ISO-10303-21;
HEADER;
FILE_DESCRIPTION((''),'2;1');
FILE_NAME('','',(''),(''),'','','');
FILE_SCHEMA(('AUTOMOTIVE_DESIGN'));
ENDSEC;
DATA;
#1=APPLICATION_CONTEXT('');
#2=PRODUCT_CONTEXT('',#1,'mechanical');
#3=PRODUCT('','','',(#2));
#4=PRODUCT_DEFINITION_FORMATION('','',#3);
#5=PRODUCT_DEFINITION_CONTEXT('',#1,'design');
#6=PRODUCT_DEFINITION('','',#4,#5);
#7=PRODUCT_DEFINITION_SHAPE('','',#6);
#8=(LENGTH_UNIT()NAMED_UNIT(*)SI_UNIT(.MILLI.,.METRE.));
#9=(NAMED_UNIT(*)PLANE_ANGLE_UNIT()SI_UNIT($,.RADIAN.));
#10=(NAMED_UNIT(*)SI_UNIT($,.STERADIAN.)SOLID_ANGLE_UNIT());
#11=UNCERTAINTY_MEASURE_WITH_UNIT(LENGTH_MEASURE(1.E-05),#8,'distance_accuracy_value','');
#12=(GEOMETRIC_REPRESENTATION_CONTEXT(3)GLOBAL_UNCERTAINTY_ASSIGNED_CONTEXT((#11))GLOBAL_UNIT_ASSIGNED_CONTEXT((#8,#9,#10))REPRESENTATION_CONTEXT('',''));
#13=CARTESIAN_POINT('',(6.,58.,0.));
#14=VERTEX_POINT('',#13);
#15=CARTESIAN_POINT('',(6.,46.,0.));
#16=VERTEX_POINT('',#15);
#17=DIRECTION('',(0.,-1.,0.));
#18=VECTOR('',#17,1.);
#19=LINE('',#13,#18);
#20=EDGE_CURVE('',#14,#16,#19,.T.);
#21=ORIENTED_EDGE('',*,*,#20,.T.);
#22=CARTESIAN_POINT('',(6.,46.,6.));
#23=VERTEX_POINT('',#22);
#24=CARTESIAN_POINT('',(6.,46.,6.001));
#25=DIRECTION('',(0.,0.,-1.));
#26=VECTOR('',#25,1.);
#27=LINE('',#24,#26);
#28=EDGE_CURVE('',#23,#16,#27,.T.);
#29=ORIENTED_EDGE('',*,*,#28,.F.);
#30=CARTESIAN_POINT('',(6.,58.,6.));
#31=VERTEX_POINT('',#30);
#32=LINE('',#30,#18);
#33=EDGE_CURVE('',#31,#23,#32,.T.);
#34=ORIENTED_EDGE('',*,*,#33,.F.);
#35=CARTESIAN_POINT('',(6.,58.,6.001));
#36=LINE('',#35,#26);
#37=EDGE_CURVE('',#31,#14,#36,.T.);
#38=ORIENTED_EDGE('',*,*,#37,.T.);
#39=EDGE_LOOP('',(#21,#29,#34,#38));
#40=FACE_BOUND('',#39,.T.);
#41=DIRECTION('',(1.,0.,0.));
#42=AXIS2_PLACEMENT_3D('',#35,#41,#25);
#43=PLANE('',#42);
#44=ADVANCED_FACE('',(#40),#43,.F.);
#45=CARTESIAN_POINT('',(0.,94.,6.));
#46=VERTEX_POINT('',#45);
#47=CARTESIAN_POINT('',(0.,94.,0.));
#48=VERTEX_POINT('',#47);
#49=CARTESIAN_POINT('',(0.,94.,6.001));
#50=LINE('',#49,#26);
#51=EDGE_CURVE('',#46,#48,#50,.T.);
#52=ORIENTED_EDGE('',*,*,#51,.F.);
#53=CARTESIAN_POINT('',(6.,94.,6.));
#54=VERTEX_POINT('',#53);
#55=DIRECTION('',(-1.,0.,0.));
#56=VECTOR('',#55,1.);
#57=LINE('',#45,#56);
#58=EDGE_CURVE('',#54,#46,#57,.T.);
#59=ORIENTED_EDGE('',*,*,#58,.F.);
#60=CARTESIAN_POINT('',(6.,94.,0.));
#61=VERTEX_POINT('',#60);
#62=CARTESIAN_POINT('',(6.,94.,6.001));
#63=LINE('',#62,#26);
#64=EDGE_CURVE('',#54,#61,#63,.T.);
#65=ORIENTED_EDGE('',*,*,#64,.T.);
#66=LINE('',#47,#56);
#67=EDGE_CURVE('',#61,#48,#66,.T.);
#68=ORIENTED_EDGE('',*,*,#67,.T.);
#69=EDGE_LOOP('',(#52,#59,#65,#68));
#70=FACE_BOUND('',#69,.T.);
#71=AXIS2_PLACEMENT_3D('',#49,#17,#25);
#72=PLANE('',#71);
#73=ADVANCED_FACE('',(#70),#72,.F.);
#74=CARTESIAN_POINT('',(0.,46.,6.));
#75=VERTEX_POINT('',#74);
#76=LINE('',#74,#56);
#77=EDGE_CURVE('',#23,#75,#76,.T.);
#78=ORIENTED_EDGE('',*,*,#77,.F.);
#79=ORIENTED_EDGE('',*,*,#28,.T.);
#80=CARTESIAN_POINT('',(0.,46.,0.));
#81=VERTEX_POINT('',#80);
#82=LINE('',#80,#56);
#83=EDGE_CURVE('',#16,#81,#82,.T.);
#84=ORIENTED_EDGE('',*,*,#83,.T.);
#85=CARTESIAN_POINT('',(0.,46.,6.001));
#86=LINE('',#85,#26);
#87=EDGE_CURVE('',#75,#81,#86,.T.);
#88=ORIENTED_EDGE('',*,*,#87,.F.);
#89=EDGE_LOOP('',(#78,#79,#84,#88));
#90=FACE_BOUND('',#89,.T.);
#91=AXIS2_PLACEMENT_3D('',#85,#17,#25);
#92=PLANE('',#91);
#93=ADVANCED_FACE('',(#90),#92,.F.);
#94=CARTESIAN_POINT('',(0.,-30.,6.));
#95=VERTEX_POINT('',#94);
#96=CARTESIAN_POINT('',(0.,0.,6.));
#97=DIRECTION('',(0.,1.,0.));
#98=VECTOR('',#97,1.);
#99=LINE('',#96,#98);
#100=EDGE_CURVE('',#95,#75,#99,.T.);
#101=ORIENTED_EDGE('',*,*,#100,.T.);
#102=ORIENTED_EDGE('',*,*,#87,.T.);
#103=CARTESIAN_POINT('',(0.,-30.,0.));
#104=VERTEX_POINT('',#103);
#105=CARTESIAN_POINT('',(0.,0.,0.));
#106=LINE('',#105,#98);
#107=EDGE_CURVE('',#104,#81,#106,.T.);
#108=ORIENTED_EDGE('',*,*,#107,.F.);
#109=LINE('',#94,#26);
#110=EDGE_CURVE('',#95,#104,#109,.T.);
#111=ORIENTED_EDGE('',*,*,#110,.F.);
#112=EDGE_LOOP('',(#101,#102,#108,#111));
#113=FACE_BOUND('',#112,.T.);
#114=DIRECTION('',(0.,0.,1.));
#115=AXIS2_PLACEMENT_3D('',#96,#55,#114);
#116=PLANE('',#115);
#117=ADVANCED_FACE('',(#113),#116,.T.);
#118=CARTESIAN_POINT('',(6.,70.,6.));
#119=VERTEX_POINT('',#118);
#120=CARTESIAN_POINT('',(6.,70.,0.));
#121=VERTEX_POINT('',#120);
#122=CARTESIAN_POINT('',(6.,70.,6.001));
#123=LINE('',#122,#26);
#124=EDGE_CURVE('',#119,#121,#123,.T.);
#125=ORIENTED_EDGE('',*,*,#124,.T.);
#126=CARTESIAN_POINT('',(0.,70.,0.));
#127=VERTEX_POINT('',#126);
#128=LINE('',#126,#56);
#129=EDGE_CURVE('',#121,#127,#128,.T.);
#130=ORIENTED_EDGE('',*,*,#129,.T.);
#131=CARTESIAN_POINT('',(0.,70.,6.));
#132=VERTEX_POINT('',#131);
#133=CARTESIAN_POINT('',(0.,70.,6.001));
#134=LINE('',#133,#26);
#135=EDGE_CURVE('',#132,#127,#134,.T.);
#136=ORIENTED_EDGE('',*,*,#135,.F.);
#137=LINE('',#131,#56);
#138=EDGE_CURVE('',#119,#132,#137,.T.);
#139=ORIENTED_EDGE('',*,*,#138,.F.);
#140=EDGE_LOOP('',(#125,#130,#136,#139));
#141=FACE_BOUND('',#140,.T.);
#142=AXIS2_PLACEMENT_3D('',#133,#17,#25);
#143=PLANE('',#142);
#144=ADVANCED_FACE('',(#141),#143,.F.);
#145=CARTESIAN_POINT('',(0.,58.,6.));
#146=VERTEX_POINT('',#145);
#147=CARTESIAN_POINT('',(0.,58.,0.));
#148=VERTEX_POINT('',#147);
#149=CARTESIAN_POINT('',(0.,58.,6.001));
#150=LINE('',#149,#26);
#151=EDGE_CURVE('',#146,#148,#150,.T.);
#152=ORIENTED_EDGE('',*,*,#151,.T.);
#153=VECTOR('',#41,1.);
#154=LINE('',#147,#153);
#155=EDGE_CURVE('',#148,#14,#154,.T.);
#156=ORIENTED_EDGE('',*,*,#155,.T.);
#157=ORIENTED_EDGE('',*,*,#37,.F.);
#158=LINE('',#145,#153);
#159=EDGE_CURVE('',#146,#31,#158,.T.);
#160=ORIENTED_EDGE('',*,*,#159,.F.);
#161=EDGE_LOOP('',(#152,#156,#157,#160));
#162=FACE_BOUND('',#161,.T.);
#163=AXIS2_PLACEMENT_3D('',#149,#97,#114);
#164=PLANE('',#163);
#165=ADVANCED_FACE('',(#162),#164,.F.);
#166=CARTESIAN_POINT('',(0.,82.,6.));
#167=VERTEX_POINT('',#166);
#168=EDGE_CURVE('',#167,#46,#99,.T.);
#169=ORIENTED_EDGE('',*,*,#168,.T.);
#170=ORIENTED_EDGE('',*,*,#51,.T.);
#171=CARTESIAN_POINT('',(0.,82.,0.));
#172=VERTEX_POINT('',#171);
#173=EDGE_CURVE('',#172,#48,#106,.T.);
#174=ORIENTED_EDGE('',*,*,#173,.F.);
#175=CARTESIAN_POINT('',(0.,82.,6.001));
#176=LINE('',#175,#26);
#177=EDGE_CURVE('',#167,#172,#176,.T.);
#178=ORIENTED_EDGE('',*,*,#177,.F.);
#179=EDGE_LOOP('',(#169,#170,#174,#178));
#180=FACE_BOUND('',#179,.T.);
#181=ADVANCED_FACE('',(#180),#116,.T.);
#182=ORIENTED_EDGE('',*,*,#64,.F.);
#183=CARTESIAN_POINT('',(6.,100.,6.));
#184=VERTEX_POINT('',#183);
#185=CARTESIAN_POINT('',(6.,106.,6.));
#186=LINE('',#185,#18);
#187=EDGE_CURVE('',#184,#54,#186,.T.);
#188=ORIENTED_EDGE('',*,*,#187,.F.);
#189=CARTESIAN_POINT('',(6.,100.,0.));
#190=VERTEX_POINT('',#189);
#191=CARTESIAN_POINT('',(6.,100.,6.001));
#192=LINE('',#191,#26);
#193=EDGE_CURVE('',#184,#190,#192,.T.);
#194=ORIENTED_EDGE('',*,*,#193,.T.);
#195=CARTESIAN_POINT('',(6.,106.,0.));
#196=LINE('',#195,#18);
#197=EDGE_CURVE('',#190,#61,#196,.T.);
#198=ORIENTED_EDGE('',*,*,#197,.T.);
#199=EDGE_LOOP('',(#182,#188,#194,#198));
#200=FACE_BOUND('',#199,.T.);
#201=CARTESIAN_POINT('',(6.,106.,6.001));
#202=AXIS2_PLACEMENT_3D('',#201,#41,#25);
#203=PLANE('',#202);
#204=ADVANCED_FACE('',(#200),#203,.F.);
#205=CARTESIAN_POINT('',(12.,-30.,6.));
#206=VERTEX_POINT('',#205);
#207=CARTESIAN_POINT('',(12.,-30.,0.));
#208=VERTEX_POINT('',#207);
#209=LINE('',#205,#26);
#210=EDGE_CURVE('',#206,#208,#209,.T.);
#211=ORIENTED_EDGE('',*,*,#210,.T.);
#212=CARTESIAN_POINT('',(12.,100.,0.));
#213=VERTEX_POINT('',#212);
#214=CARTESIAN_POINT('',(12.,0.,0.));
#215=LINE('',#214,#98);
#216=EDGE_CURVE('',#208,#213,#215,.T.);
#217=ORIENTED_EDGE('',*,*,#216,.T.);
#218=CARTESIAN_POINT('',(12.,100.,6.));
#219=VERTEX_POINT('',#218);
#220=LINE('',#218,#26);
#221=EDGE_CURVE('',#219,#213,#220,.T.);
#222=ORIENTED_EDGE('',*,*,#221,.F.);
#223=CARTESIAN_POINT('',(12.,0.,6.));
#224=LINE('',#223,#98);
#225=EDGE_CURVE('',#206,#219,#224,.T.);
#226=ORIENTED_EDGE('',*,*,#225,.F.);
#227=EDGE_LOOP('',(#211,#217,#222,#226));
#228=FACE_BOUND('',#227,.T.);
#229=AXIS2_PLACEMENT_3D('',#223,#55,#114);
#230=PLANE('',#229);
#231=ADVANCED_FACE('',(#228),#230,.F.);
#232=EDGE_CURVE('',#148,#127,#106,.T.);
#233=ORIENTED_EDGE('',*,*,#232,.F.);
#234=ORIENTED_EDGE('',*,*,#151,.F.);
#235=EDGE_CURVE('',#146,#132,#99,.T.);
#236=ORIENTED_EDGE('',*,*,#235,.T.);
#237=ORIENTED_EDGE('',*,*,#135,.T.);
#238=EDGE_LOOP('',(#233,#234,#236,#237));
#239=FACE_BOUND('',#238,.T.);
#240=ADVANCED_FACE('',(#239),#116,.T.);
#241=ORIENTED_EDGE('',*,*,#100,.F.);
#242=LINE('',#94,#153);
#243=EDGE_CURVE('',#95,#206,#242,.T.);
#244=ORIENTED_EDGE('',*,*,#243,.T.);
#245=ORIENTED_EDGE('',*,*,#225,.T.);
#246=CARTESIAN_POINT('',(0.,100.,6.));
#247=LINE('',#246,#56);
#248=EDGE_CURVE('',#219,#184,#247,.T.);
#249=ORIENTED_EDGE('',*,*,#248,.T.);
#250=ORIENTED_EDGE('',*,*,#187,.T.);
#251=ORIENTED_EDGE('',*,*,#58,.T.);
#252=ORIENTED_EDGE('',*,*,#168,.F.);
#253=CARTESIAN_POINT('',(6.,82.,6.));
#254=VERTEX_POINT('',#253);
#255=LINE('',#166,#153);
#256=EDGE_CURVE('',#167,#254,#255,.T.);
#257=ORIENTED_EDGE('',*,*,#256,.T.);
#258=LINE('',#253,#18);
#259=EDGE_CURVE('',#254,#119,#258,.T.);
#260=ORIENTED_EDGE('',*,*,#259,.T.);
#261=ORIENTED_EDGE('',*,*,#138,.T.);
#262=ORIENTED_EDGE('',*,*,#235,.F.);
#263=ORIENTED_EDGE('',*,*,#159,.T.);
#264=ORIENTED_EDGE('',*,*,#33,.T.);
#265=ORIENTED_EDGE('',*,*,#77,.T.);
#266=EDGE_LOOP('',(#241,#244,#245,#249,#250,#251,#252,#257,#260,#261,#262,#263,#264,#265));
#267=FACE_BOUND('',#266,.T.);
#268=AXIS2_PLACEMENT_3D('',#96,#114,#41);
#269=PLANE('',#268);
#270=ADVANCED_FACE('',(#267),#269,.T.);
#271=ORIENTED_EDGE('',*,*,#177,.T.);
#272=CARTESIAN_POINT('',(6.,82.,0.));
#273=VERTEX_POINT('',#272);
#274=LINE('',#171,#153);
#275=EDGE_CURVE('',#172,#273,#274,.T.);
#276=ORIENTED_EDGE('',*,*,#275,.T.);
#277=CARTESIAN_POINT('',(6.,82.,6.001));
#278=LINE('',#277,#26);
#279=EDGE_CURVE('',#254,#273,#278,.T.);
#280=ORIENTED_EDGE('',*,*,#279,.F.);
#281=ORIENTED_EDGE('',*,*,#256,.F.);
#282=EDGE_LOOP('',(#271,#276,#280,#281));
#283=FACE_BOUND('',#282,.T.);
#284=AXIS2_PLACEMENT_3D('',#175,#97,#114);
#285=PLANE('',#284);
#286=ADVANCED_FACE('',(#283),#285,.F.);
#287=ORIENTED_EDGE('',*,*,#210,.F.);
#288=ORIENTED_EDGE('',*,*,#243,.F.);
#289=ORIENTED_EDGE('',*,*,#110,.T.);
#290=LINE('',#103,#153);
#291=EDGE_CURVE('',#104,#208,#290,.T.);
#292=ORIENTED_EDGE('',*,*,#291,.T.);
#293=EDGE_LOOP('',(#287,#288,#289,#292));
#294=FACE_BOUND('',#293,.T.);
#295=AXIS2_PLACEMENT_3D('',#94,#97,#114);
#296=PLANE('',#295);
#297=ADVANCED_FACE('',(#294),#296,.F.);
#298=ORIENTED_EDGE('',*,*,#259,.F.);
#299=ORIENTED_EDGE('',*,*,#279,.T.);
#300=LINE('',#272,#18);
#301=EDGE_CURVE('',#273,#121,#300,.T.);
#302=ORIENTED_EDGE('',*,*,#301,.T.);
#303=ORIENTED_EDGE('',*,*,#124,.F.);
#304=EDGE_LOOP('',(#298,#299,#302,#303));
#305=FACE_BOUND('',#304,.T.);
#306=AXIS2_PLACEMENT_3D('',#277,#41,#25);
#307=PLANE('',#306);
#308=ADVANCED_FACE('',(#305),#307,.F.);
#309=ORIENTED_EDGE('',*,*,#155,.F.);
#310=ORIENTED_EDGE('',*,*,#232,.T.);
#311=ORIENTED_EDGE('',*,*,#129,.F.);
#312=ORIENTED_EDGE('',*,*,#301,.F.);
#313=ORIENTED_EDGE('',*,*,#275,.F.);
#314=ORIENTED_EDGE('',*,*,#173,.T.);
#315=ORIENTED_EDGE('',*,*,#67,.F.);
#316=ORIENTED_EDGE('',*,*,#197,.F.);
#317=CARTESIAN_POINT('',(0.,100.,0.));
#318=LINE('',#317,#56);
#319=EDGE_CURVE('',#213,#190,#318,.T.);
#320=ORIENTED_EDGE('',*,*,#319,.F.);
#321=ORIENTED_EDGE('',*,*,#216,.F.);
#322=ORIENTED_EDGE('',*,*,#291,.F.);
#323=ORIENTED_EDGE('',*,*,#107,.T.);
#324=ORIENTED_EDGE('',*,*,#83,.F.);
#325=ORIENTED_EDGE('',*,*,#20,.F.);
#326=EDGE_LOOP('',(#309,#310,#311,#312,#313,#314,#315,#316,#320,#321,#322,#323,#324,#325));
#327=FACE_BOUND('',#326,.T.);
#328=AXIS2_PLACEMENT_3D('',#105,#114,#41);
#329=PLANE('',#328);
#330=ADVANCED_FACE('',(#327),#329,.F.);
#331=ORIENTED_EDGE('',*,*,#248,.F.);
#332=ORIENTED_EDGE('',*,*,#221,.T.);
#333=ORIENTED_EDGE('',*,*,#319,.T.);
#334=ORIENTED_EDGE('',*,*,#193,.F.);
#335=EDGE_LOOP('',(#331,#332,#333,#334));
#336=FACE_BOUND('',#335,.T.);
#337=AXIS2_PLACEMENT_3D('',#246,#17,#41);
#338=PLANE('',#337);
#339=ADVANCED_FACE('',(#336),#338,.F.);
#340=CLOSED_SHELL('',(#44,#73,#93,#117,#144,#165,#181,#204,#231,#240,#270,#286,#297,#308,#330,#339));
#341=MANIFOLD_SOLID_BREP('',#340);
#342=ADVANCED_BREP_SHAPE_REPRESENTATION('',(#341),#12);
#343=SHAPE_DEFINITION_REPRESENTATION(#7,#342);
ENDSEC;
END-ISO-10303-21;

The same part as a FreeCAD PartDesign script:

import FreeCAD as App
import Part
import Sketcher

V = App.Vector


def add_polygon(sketch, points):
    """Adds a closed chain of lines whose ends are joined by coincident constraints."""
    first, n = sketch.GeometryCount, len(points)
    for a, b in zip(points, points[1:] + points[:1]):
        sketch.addGeometry(Part.LineSegment(App.Vector(*a, 0), App.Vector(*b, 0)), False)
    for i in range(n):
        sketch.addConstraint(Sketcher.Constraint("Coincident", first + i, 2, first + (i + 1) % n, 1))

doc = App.newDocument("Part")
body = doc.addObject("PartDesign::Body", "Body")

# Sketch on XY plane
sketch1 = doc.addObject("Sketcher::SketchObject", "Sketch")
body.addObject(sketch1)
sketch1.AttachmentSupport = (doc.XY_Plane, [""])
sketch1.MapMode = "FlatFace"
add_polygon(sketch1, [(0, 100), (0, 0), (12, 0), (12, 100)])  # lines 0-3
sketch1.addConstraint([
    Sketcher.Constraint("Vertical", 0),
    Sketcher.Constraint("Horizontal", 1),
    Sketcher.Constraint("Vertical", 2),
    Sketcher.Constraint("Horizontal", 3),
    Sketcher.Constraint("Coincident", 0, 2, -1, 1),
    Sketcher.Constraint("DistanceX", 1, 1, 1, 2, 12.0),
    Sketcher.Constraint("DistanceY", 0, 2, 0, 1, 100.0),
])
pad1 = doc.addObject("PartDesign::Pad", "Pad")
body.addObject(pad1)
pad1.Profile = sketch1
pad1.Length = 6

# Sketch on XY plane
sketch2 = doc.addObject("Sketcher::SketchObject", "Sketch001")
body.addObject(sketch2)
sketch2.AttachmentSupport = (doc.XY_Plane, [""])
sketch2.MapMode = "FlatFace"
add_polygon(sketch2, [(0, 0), (0, -30), (12, -30), (12, 0)])  # lines 0-3
sketch2.addConstraint([
    Sketcher.Constraint("Vertical", 0),
    Sketcher.Constraint("Horizontal", 1),
    Sketcher.Constraint("Vertical", 2),
    Sketcher.Constraint("Horizontal", 3),
    Sketcher.Constraint("Coincident", 3, 2, -1, 1),
    Sketcher.Constraint("DistanceX", 1, 1, 1, 2, 12.0),
    Sketcher.Constraint("DistanceY", 0, 2, 0, 1, 30.0),
])
pad2 = doc.addObject("PartDesign::Pad", "Pad001")
body.addObject(pad2)
pad2.Profile = sketch2
pad2.Length = 6

# Sketch on XY plane
sketch3 = doc.addObject("Sketcher::SketchObject", "Sketch002")
body.addObject(sketch3)
sketch3.AttachmentSupport = (doc.XY_Plane, [""])
sketch3.MapMode = "FlatFace"
add_polygon(sketch3, [(6, 106), (6, 94), (0, 94), (0, 106)])  # lines 0-3
sketch3.addConstraint([
    Sketcher.Constraint("Vertical", 0),
    Sketcher.Constraint("Horizontal", 1),
    Sketcher.Constraint("Vertical", 2),
    Sketcher.Constraint("Horizontal", 3),
    Sketcher.Constraint("PointOnObject", 1, 2, -2),
    Sketcher.Constraint("DistanceX", 1, 2, 1, 1, 6.0),
    Sketcher.Constraint("DistanceY", 0, 2, 0, 1, 12.0),
    Sketcher.Constraint("DistanceY", -1, 1, 0, 2, 94.0),
])
pocket1 = doc.addObject("PartDesign::Pocket", "Pocket")
body.addObject(pocket1)
pocket1.Profile = sketch3
pocket1.Type = "UpToFirst"
pocket1.Reversed = True

# Sketch on XY plane
sketch4 = doc.addObject("Sketcher::SketchObject", "Sketch003")
body.addObject(sketch4)
sketch4.AttachmentSupport = (doc.XY_Plane, [""])
sketch4.MapMode = "FlatFace"
add_polygon(sketch4, [(6, 82), (6, 70), (0, 70), (0, 82)])  # lines 0-3
sketch4.addConstraint([
    Sketcher.Constraint("Vertical", 0),
    Sketcher.Constraint("Horizontal", 1),
    Sketcher.Constraint("Vertical", 2),
    Sketcher.Constraint("Horizontal", 3),
    Sketcher.Constraint("PointOnObject", 1, 2, -2),
    Sketcher.Constraint("DistanceX", 1, 2, 1, 1, 6.0),
    Sketcher.Constraint("DistanceY", 0, 2, 0, 1, 12.0),
    Sketcher.Constraint("DistanceY", -1, 1, 0, 2, 70.0),
])
pocket2 = doc.addObject("PartDesign::Pocket", "Pocket001")
body.addObject(pocket2)
pocket2.Profile = sketch4
pocket2.Type = "UpToFirst"
pocket2.Reversed = True

# Sketch on XY plane
sketch5 = doc.addObject("Sketcher::SketchObject", "Sketch004")
body.addObject(sketch5)
sketch5.AttachmentSupport = (doc.XY_Plane, [""])
sketch5.MapMode = "FlatFace"
add_polygon(sketch5, [(6, 58), (6, 46), (0, 46), (0, 58)])  # lines 0-3
sketch5.addConstraint([
    Sketcher.Constraint("Vertical", 0),
    Sketcher.Constraint("Horizontal", 1),
    Sketcher.Constraint("Vertical", 2),
    Sketcher.Constraint("Horizontal", 3),
    Sketcher.Constraint("PointOnObject", 1, 2, -2),
    Sketcher.Constraint("DistanceX", 1, 2, 1, 1, 6.0),
    Sketcher.Constraint("DistanceY", 0, 2, 0, 1, 12.0),
    Sketcher.Constraint("DistanceY", -1, 1, 0, 2, 46.0),
])
pocket3 = doc.addObject("PartDesign::Pocket", "Pocket002")
body.addObject(pocket3)
pocket3.Profile = sketch5
pocket3.Type = "UpToFirst"
pocket3.Reversed = True

doc.recompute()
